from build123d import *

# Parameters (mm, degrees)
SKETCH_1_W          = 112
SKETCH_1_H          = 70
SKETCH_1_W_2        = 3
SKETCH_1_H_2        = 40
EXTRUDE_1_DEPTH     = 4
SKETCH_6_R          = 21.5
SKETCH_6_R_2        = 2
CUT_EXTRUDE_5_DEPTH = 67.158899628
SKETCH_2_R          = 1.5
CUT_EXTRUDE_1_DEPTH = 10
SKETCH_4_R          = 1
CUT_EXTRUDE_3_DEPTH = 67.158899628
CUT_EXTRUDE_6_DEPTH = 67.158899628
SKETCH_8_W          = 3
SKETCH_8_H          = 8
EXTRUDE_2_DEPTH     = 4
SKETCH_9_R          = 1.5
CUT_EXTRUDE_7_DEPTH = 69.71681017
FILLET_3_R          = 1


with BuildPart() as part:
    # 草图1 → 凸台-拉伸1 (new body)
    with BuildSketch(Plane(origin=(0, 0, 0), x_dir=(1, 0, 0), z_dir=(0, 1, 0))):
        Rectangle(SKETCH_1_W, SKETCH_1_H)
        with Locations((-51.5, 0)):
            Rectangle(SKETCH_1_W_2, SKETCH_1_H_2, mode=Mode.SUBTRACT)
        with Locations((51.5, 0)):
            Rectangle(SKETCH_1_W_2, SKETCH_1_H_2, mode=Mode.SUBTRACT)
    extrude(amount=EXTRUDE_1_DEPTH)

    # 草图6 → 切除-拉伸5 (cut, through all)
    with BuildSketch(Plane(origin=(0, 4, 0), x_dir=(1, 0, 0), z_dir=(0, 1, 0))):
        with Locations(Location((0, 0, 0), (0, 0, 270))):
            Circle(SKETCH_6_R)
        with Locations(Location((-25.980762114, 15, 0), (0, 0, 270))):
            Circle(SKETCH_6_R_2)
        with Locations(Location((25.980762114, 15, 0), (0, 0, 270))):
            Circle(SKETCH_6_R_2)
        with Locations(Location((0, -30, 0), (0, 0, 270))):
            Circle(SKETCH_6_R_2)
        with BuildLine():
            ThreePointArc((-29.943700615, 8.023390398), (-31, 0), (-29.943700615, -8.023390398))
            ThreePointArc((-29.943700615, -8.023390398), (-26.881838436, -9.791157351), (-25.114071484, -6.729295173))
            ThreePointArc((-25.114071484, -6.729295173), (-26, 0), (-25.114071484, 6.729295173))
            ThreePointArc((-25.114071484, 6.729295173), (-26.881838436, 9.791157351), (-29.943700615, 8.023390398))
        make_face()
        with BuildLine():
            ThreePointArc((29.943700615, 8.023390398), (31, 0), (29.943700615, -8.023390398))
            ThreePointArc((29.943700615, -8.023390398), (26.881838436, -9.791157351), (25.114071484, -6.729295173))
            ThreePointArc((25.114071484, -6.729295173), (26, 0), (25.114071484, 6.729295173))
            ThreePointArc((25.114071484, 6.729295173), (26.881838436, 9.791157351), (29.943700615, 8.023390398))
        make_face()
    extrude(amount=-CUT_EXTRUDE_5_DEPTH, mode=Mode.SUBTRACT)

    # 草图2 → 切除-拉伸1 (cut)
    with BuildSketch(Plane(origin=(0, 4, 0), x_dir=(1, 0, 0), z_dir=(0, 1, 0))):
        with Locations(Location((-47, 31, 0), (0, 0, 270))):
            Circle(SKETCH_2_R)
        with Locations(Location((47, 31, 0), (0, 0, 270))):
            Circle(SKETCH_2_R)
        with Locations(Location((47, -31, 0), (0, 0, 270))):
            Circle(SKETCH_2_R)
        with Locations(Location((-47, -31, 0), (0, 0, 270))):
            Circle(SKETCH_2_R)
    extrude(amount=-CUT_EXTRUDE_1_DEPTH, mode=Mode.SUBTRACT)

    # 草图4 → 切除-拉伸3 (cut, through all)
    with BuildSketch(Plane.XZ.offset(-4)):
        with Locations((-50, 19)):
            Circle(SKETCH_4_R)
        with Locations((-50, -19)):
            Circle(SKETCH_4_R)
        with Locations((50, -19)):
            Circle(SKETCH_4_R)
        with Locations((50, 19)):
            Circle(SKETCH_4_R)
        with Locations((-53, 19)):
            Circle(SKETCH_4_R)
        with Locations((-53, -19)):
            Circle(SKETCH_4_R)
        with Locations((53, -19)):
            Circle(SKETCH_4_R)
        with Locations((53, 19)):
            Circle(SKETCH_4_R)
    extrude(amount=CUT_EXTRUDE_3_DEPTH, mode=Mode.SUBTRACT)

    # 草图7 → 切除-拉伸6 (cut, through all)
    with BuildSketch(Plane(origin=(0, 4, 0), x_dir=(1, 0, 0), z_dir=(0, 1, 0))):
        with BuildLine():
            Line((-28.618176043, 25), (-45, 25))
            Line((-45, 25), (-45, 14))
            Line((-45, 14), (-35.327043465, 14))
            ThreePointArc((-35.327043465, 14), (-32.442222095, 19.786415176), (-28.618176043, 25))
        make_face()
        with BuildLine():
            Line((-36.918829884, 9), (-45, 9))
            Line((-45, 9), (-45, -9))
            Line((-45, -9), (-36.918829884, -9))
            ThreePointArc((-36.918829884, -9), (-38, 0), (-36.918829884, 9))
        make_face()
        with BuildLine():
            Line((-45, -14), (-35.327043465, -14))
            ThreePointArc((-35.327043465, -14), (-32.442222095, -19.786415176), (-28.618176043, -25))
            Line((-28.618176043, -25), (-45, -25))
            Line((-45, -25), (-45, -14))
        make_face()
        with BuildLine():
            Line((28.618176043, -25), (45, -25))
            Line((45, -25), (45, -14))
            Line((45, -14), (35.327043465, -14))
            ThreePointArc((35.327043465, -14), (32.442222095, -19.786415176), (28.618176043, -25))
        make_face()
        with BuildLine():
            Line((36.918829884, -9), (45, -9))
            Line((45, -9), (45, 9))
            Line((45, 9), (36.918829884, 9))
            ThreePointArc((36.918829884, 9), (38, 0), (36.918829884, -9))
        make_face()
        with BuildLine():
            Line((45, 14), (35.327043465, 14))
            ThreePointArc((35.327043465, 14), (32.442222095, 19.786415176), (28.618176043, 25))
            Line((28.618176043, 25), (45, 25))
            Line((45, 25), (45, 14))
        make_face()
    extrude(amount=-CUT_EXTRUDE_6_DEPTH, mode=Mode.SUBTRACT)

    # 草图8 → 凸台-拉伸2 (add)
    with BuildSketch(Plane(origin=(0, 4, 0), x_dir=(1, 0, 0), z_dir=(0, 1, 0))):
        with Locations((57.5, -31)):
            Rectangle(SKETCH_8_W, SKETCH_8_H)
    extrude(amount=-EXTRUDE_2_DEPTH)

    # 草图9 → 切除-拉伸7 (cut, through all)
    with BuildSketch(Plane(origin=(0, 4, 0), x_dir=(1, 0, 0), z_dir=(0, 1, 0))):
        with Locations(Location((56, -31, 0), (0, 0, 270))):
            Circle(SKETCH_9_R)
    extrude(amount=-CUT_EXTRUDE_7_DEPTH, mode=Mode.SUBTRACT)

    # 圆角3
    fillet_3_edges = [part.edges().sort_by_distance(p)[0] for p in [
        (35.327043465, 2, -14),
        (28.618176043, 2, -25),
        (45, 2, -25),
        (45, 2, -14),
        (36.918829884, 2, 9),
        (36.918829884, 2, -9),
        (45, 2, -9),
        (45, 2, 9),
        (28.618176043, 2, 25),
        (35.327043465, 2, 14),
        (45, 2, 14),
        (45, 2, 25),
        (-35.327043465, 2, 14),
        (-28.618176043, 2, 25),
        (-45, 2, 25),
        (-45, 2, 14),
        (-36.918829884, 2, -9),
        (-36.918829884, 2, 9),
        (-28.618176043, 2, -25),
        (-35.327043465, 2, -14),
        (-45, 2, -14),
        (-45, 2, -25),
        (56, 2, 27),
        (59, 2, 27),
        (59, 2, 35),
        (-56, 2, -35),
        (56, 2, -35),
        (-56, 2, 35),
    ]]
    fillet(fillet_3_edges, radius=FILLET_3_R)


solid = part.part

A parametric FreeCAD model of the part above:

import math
import FreeCAD as App
import Part
import Sketcher

V = App.Vector
Q = App.Units.Quantity


def edges_at(feature, points):
    """Names of the edges that pass closest to the given points."""
    edges = feature.Shape.Edges
    near = lambda p: min(range(len(edges)), key=lambda i: edges[i].distToShape(Part.Vertex(*p))[0])
    return sorted({f"Edge{near(p) + 1}" for p in points})


def add_polygon(sketch, points):
    """Adds a closed chain of lines whose ends are joined by coincident constraints."""
    first, n = sketch.GeometryCount, len(points)
    for a, b in zip(points, points[1:] + points[:1]):
        sketch.addGeometry(Part.LineSegment(App.Vector(*a, 0), App.Vector(*b, 0)), False)
    for i in range(n):
        sketch.addConstraint(Sketcher.Constraint("Coincident", first + i, 2, first + (i + 1) % n, 1))

doc = App.newDocument("Part")
body = doc.addObject("PartDesign::Body", "Body")

# Sketch on XZ plane
sketch1 = body.newObject("Sketcher::SketchObject", "Sketch")
sketch1.AttachmentSupport = (doc.getObject("XZ_Plane"), [""])
sketch1.MapMode = "FlatFace"
add_polygon(sketch1, [(-56, -35), (-56, 35), (56, 35), (56, -35)])  # lines 0-3
add_polygon(sketch1, [(-50, 20), (-53, 20), (-53, -20), (-50, -20)])  # lines 4-7
add_polygon(sketch1, [(53, 20), (50, 20), (50, -20), (53, -20)])  # lines 8-11
sketch1.addConstraint(Sketcher.Constraint("Vertical", 0))
sketch1.addConstraint(Sketcher.Constraint("Horizontal", 1))
sketch1.addConstraint(Sketcher.Constraint("Vertical", 2))
sketch1.addConstraint(Sketcher.Constraint("Horizontal", 3))
sketch1.addConstraint(Sketcher.Constraint("Horizontal", 4))
sketch1.addConstraint(Sketcher.Constraint("Vertical", 5))
sketch1.addConstraint(Sketcher.Constraint("Horizontal", 6))
sketch1.addConstraint(Sketcher.Constraint("Vertical", 7))
sketch1.addConstraint(Sketcher.Constraint("Horizontal", 8))
sketch1.addConstraint(Sketcher.Constraint("Vertical", 9))
sketch1.addConstraint(Sketcher.Constraint("Horizontal", 10))
sketch1.addConstraint(Sketcher.Constraint("Vertical", 11))
sketch1.addConstraint(Sketcher.Constraint("Symmetric", 0, 2, 2, 2, -1, 1))
sketch1.addConstraint(Sketcher.Constraint("Symmetric", 6, 2, 8, 2, -1, 1))
sketch1.addConstraint(Sketcher.Constraint("Symmetric", 4, 2, 10, 2, -1, 1))
sketch1.addConstraint(Sketcher.Constraint("Horizontal", 7, 2, 8, 2))
sketch1.addConstraint(Sketcher.Constraint("DistanceX", 1, 1, 1, 2, Q("112 mm")))
sketch1.addConstraint(Sketcher.Constraint("DistanceX", 4, 2, 4, 1, Q("3 mm")))
sketch1.addConstraint(Sketcher.Constraint("DistanceY", 0, 1, 0, 2, Q("70 mm")))
sketch1.addConstraint(Sketcher.Constraint("DistanceY", 5, 2, 5, 1, Q("40 mm")))
sketch1.addConstraint(Sketcher.Constraint("DistanceX", 4, 2, -1, 1, Q("53 mm")))
pad1 = body.newObject("PartDesign::Pad", "Pad")
pad1.Profile = sketch1
pad1.Length = 4
pad1.Reversed = True

# Sketch on XZ plane
sketch2 = body.newObject("Sketcher::SketchObject", "Sketch001")
sketch2.AttachmentSupport = (doc.getObject("XZ_Plane"), [""])
sketch2.MapMode = "FlatFace"
sketch2.AttachmentOffset = App.Placement(V(0, 0, -4), App.Rotation())
sketch2.addGeometry(Part.Circle(V(0, 0, 0), V(0, 0, 1), 21.5), False)
sketch2.addGeometry(Part.Circle(V(-26, -15, 0), V(0, 0, 1), 2), False)
sketch2.addGeometry(Part.Circle(V(26, -15, 0), V(0, 0, 1), 2), False)
sketch2.addGeometry(Part.Circle(V(0, 30, 0), V(0, 0, 1), 2), False)
sketch2.addGeometry(Part.ArcOfCircle(Part.Circle(V(0, 0, 0), V(0, 0, 1), 31), math.radians(165), math.radians(195)), False)
sketch2.addGeometry(Part.ArcOfCircle(Part.Circle(V(-27.5, 7.4, 0), V(0, 0, 1), 2.5), math.radians(-15), math.radians(165)), False)
sketch2.addGeometry(Part.ArcOfCircle(Part.Circle(V(0, 0, 0), V(0, 0, 1), 26), math.radians(165), math.radians(195)), False)
sketch2.addGeometry(Part.ArcOfCircle(Part.Circle(V(-27.5, -7.4, 0), V(0, 0, 1), 2.5), math.radians(-165), math.radians(15)), False)
sketch2.addGeometry(Part.ArcOfCircle(Part.Circle(V(0, 0, 0), V(0, 0, 1), 31), math.radians(-15), math.radians(15)), False)
sketch2.addGeometry(Part.ArcOfCircle(Part.Circle(V(27.5, -7.4, 0), V(0, 0, 1), 2.5), math.radians(165), math.radians(345)), False)
sketch2.addGeometry(Part.ArcOfCircle(Part.Circle(V(0, 0, 0), V(0, 0, 1), 26), math.radians(-15), math.radians(15)), False)
sketch2.addGeometry(Part.ArcOfCircle(Part.Circle(V(27.5, 7.4, 0), V(0, 0, 1), 2.5), math.radians(15), math.radians(195)), False)
sketch2.addConstraint(Sketcher.Constraint("Tangent", 4, 1, 5, 2))
sketch2.addConstraint(Sketcher.Constraint("Tangent", 5, 1, 6, 1))
sketch2.addConstraint(Sketcher.Constraint("Tangent", 6, 2, 7, 2))
sketch2.addConstraint(Sketcher.Constraint("Tangent", 7, 1, 4, 2))
sketch2.addConstraint(Sketcher.Constraint("Tangent", 8, 1, 9, 2))
sketch2.addConstraint(Sketcher.Constraint("Tangent", 9, 1, 10, 1))
sketch2.addConstraint(Sketcher.Constraint("Tangent", 10, 2, 11, 2))
sketch2.addConstraint(Sketcher.Constraint("Tangent", 11, 1, 8, 2))
sketch2.addConstraint(Sketcher.Constraint("Coincident", 0, 3, -1, 1))
sketch2.addConstraint(Sketcher.Constraint("Coincident", 4, 3, -1, 1))
sketch2.addConstraint(Sketcher.Constraint("Coincident", 6, 3, -1, 1))
sketch2.addConstraint(Sketcher.Constraint("Coincident", 8, 3, -1, 1))
sketch2.addConstraint(Sketcher.Constraint("Coincident", 10, 3, -1, 1))
sketch2.addConstraint(Sketcher.Constraint("Equal", 1, 2))
sketch2.addConstraint(Sketcher.Constraint("Equal", 2, 3))
sketch2.addConstraint(Sketcher.Constraint("Equal", 4, 8))
sketch2.addConstraint(Sketcher.Constraint("Equal", 7, 9))
sketch2.addConstraint(Sketcher.Constraint("Symmetric", 1, 3, 2, 3, -2))
sketch2.addConstraint(Sketcher.Constraint("PointOnObject", 3, 3, -2))
sketch2.addConstraint(Sketcher.Constraint("Horizontal", 7, 3, 9, 3))
sketch2.addConstraint(Sketcher.Constraint("Horizontal", 5, 3, 11, 3))
sketch2.addConstraint(Sketcher.Constraint("Vertical", 5, 3, 7, 3))
sketch2.addConstraint(Sketcher.Constraint("Diameter", 0, Q("43 mm")))
sketch2.addConstraint(Sketcher.Constraint("Diameter", 1, Q("4 mm")))
sketch2.addConstraint(Sketcher.Constraint("Radius", 4, Q("31 mm")))
sketch2.addConstraint(Sketcher.Constraint("Radius", 6, Q("26 mm")))
sketch2.addConstraint(Sketcher.Constraint("DistanceY", 1, 3, -1, 1, Q("15 mm")))
sketch2.addConstraint(Sketcher.Constraint("DistanceY", -1, 1, 3, 3, Q("30 mm")))
sketch2.addConstraint(Sketcher.Constraint("DistanceX", 4, 1, -1, 1, Q("29.943701 mm")))
sketch2.addConstraint(Sketcher.Constraint("DistanceX", 5, 3, 2, 3, Q("53.509648 mm")))
pocket1 = body.newObject("PartDesign::Pocket", "Pocket")
pocket1.Profile = sketch2
pocket1.Type = "ThroughAll"
pocket1.Reversed = True

# Sketch on XZ plane
sketch3 = body.newObject("Sketcher::SketchObject", "Sketch002")
sketch3.AttachmentSupport = (doc.getObject("XZ_Plane"), [""])
sketch3.MapMode = "FlatFace"
sketch3.AttachmentOffset = App.Placement(V(0, 0, -4), App.Rotation())
sketch3.addGeometry(Part.Circle(V(-47, -31, 0), V(0, 0, 1), 1.5), False)
sketch3.addGeometry(Part.Circle(V(47, -31, 0), V(0, 0, 1), 1.5), False)
sketch3.addGeometry(Part.Circle(V(47, 31, 0), V(0, 0, 1), 1.5), False)
sketch3.addGeometry(Part.Circle(V(-47, 31, 0), V(0, 0, 1), 1.5), False)
sketch3.addConstraint(Sketcher.Constraint("Equal", 0, 1))
sketch3.addConstraint(Sketcher.Constraint("Equal", 1, 2))
sketch3.addConstraint(Sketcher.Constraint("Equal", 2, 3))
sketch3.addConstraint(Sketcher.Constraint("Symmetric", 0, 3, 2, 3, -1, 1))
sketch3.addConstraint(Sketcher.Constraint("Symmetric", 1, 3, 3, 3, -1, 1))
sketch3.addConstraint(Sketcher.Constraint("Symmetric", 0, 3, 1, 3, -2))
sketch3.addConstraint(Sketcher.Constraint("Diameter", 0, Q("3 mm")))
sketch3.addConstraint(Sketcher.Constraint("DistanceX", 0, 3, -1, 1, Q("47 mm")))
sketch3.addConstraint(Sketcher.Constraint("DistanceY", 0, 3, -1, 1, Q("31 mm")))
pocket2 = body.newObject("PartDesign::Pocket", "Pocket001")
pocket2.Profile = sketch3
pocket2.Length = 10
pocket2.Reversed = True

# Sketch on XZ plane
sketch4 = body.newObject("Sketcher::SketchObject", "Sketch003")
sketch4.AttachmentSupport = (doc.getObject("XZ_Plane"), [""])
sketch4.MapMode = "FlatFace"
sketch4.AttachmentOffset = App.Placement(V(0, 0, -4), App.Rotation())
sketch4.addGeometry(Part.Circle(V(-50, 19, 0), V(0, 0, 1), 1), False)
sketch4.addGeometry(Part.Circle(V(-50, -19, 0), V(0, 0, 1), 1), False)
sketch4.addGeometry(Part.Circle(V(50, -19, 0), V(0, 0, 1), 1), False)
sketch4.addGeometry(Part.Circle(V(50, 19, 0), V(0, 0, 1), 1), False)
sketch4.addGeometry(Part.Circle(V(-53, 19, 0), V(0, 0, 1), 1), False)
sketch4.addGeometry(Part.Circle(V(-53, -19, 0), V(0, 0, 1), 1), False)
sketch4.addGeometry(Part.Circle(V(53, -19, 0), V(0, 0, 1), 1), False)
sketch4.addGeometry(Part.Circle(V(53, 19, 0), V(0, 0, 1), 1), False)
sketch4.addConstraint(Sketcher.Constraint("Equal", 0, 1))
sketch4.addConstraint(Sketcher.Constraint("Equal", 1, 2))
sketch4.addConstraint(Sketcher.Constraint("Equal", 2, 3))
sketch4.addConstraint(Sketcher.Constraint("Equal", 3, 4))
sketch4.addConstraint(Sketcher.Constraint("Equal", 4, 5))
sketch4.addConstraint(Sketcher.Constraint("Equal", 5, 6))
sketch4.addConstraint(Sketcher.Constraint("Equal", 6, 7))
sketch4.addConstraint(Sketcher.Constraint("Symmetric", 0, 3, 2, 3, -1, 1))
sketch4.addConstraint(Sketcher.Constraint("Symmetric", 1, 3, 3, 3, -1, 1))
sketch4.addConstraint(Sketcher.Constraint("Symmetric", 4, 3, 6, 3, -1, 1))
sketch4.addConstraint(Sketcher.Constraint("Symmetric", 5, 3, 7, 3, -1, 1))
sketch4.addConstraint(Sketcher.Constraint("Symmetric", 1, 3, 2, 3, -2))
sketch4.addConstraint(Sketcher.Constraint("Symmetric", 5, 3, 6, 3, -2))
sketch4.addConstraint(Sketcher.Constraint("Horizontal", 3, 3, 4, 3))
sketch4.addConstraint(Sketcher.Constraint("Diameter", 0, Q("2 mm")))
sketch4.addConstraint(Sketcher.Constraint("DistanceX", 0, 3, -1, 1, Q("50 mm")))
sketch4.addConstraint(Sketcher.Constraint("DistanceY", -1, 1, 0, 3, Q("19 mm")))
sketch4.addConstraint(Sketcher.Constraint("DistanceX", 4, 3, -1, 1, Q("53 mm")))
pocket3 = body.newObject("PartDesign::Pocket", "Pocket002")
pocket3.Profile = sketch4
pocket3.Type = "ThroughAll"
pocket3.Reversed = True

# Sketch on XZ plane
sketch5 = body.newObject("Sketcher::SketchObject", "Sketch004")
sketch5.AttachmentSupport = (doc.getObject("XZ_Plane"), [""])
sketch5.MapMode = "FlatFace"
sketch5.AttachmentOffset = App.Placement(V(0, 0, -4), App.Rotation())
sketch5.addGeometry(Part.LineSegment(V(-29, -25, 0), V(-45, -25, 0)), False)
sketch5.addGeometry(Part.LineSegment(V(-45, -25, 0), V(-45, -14, 0)), False)
sketch5.addGeometry(Part.LineSegment(V(-45, -14, 0), V(-35, -14, 0)), False)
sketch5.addGeometry(Part.ArcOfCircle(Part.Circle(V(0, 0, 0), V(0, 0, 1), 38), math.radians(-158.38), math.radians(-138.86)), False)
sketch5.addGeometry(Part.LineSegment(V(-37, -9, 0), V(-45, -9, 0)), False)
sketch5.addGeometry(Part.LineSegment(V(-45, -9, 0), V(-45, 9, 0)), False)
sketch5.addGeometry(Part.LineSegment(V(-45, 9, 0), V(-37, 9, 0)), False)
sketch5.addGeometry(Part.ArcOfCircle(Part.Circle(V(0, 0, 0), V(0, 0, 1), 38), math.radians(166), math.radians(194)), False)
sketch5.addGeometry(Part.LineSegment(V(-35, 14, 0), V(-45, 14, 0)), False)
sketch5.addGeometry(Part.LineSegment(V(-45, 14, 0), V(-45, 25, 0)), False)
sketch5.addGeometry(Part.LineSegment(V(-45, 25, 0), V(-29, 25, 0)), False)
sketch5.addGeometry(Part.ArcOfCircle(Part.Circle(V(0, 0, 0), V(0, 0, 1), 38), math.radians(138.86), math.radians(158.38)), False)
sketch5.addGeometry(Part.LineSegment(V(29, 25, 0), V(45, 25, 0)), False)
sketch5.addGeometry(Part.LineSegment(V(45, 25, 0), V(45, 14, 0)), False)
sketch5.addGeometry(Part.LineSegment(V(45, 14, 0), V(35, 14, 0)), False)
sketch5.addGeometry(Part.ArcOfCircle(Part.Circle(V(0, 0, 0), V(0, 0, 1), 38), math.radians(21.62), math.radians(41.14)), False)
sketch5.addGeometry(Part.LineSegment(V(37, 9, 0), V(45, 9, 0)), False)
sketch5.addGeometry(Part.LineSegment(V(45, 9, 0), V(45, -9, 0)), False)
sketch5.addGeometry(Part.LineSegment(V(45, -9, 0), V(37, -9, 0)), False)
sketch5.addGeometry(Part.ArcOfCircle(Part.Circle(V(0, 0, 0), V(0, 0, 1), 38), math.radians(-14), math.radians(14)), False)
sketch5.addGeometry(Part.LineSegment(V(35, -14, 0), V(45, -14, 0)), False)
sketch5.addGeometry(Part.LineSegment(V(45, -14, 0), V(45, -25, 0)), False)
sketch5.addGeometry(Part.LineSegment(V(45, -25, 0), V(29, -25, 0)), False)
sketch5.addGeometry(Part.ArcOfCircle(Part.Circle(V(0, 0, 0), V(0, 0, 1), 38), math.radians(-41.14), math.radians(-21.62)), False)
sketch5.addConstraint(Sketcher.Constraint("Coincident", 0, 2, 1, 1))
sketch5.addConstraint(Sketcher.Constraint("Coincident", 1, 2, 2, 1))
sketch5.addConstraint(Sketcher.Constraint("Coincident", 2, 2, 3, 1))
sketch5.addConstraint(Sketcher.Constraint("Coincident", 3, 2, 0, 1))
sketch5.addConstraint(Sketcher.Constraint("Coincident", 4, 2, 5, 1))
sketch5.addConstraint(Sketcher.Constraint("Coincident", 5, 2, 6, 1))
sketch5.addConstraint(Sketcher.Constraint("Coincident", 6, 2, 7, 1))
sketch5.addConstraint(Sketcher.Constraint("Coincident", 7, 2, 4, 1))
sketch5.addConstraint(Sketcher.Constraint("Coincident", 8, 2, 9, 1))
sketch5.addConstraint(Sketcher.Constraint("Coincident", 9, 2, 10, 1))
sketch5.addConstraint(Sketcher.Constraint("Coincident", 10, 2, 11, 1))
sketch5.addConstraint(Sketcher.Constraint("Coincident", 11, 2, 8, 1))
sketch5.addConstraint(Sketcher.Constraint("Coincident", 12, 2, 13, 1))
sketch5.addConstraint(Sketcher.Constraint("Coincident", 13, 2, 14, 1))
sketch5.addConstraint(Sketcher.Constraint("Coincident", 14, 2, 15, 1))
sketch5.addConstraint(Sketcher.Constraint("Coincident", 15, 2, 12, 1))
sketch5.addConstraint(Sketcher.Constraint("Coincident", 16, 2, 17, 1))
sketch5.addConstraint(Sketcher.Constraint("Coincident", 17, 2, 18, 1))
sketch5.addConstraint(Sketcher.Constraint("Coincident", 18, 2, 19, 1))
sketch5.addConstraint(Sketcher.Constraint("Coincident", 19, 2, 16, 1))
sketch5.addConstraint(Sketcher.Constraint("Coincident", 20, 2, 21, 1))
sketch5.addConstraint(Sketcher.Constraint("Coincident", 21, 2, 22, 1))
sketch5.addConstraint(Sketcher.Constraint("Coincident", 22, 2, 23, 1))
sketch5.addConstraint(Sketcher.Constraint("Coincident", 23, 2, 20, 1))
sketch5.addConstraint(Sketcher.Constraint("Horizontal", 0))
sketch5.addConstraint(Sketcher.Constraint("Vertical", 1))
sketch5.addConstraint(Sketcher.Constraint("Horizontal", 2))
sketch5.addConstraint(Sketcher.Constraint("Horizontal", 4))
sketch5.addConstraint(Sketcher.Constraint("Vertical", 5))
sketch5.addConstraint(Sketcher.Constraint("Horizontal", 6))
sketch5.addConstraint(Sketcher.Constraint("Horizontal", 8))
sketch5.addConstraint(Sketcher.Constraint("Vertical", 9))
sketch5.addConstraint(Sketcher.Constraint("Horizontal", 10))
sketch5.addConstraint(Sketcher.Constraint("Horizontal", 12))
sketch5.addConstraint(Sketcher.Constraint("Vertical", 13))
sketch5.addConstraint(Sketcher.Constraint("Horizontal", 14))
sketch5.addConstraint(Sketcher.Constraint("Horizontal", 16))
sketch5.addConstraint(Sketcher.Constraint("Vertical", 17))
sketch5.addConstraint(Sketcher.Constraint("Horizontal", 18))
sketch5.addConstraint(Sketcher.Constraint("Horizontal", 20))
sketch5.addConstraint(Sketcher.Constraint("Vertical", 21))
sketch5.addConstraint(Sketcher.Constraint("Horizontal", 22))
sketch5.addConstraint(Sketcher.Constraint("Coincident", 3, 3, -1, 1))
sketch5.addConstraint(Sketcher.Constraint("Coincident", 7, 3, -1, 1))
sketch5.addConstraint(Sketcher.Constraint("Coincident", 11, 3, -1, 1))
sketch5.addConstraint(Sketcher.Constraint("Coincident", 15, 3, -1, 1))
sketch5.addConstraint(Sketcher.Constraint("Coincident", 19, 3, -1, 1))
sketch5.addConstraint(Sketcher.Constraint("Coincident", 23, 3, -1, 1))
sketch5.addConstraint(Sketcher.Constraint("Equal", 3, 7))
sketch5.addConstraint(Sketcher.Constraint("Equal", 7, 11))
sketch5.addConstraint(Sketcher.Constraint("Equal", 11, 15))
sketch5.addConstraint(Sketcher.Constraint("Equal", 15, 19))
sketch5.addConstraint(Sketcher.Constraint("Equal", 19, 23))
sketch5.addConstraint(Sketcher.Constraint("Symmetric", 0, 2, 12, 2, -1, 1))
sketch5.addConstraint(Sketcher.Constraint("Symmetric", 4, 2, 16, 2, -1, 1))
sketch5.addConstraint(Sketcher.Constraint("Symmetric", 8, 2, 20, 2, -1, 1))
sketch5.addConstraint(Sketcher.Constraint("Symmetric", 9, 2, 12, 2, -2))
sketch5.addConstraint(Sketcher.Constraint("Horizontal", 11, 2, 13, 2))
sketch5.addConstraint(Sketcher.Constraint("Horizontal", 6, 2, 16, 2))
sketch5.addConstraint(Sketcher.Constraint("Horizontal", 7, 2, 17, 2))
sketch5.addConstraint(Sketcher.Constraint("Horizontal", 2, 2, 20, 2))
sketch5.addConstraint(Sketcher.Constraint("Horizontal", 3, 2, 21, 2))
sketch5.addConstraint(Sketcher.Constraint("Vertical", 1, 2, 4, 2))
sketch5.addConstraint(Sketcher.Constraint("Radius", 3, Q("38 mm")))
sketch5.addConstraint(Sketcher.Constraint("DistanceY", 1, 1, 1, 2, Q("11 mm")))
sketch5.addConstraint(Sketcher.Constraint("DistanceY", 5, 1, 5, 2, Q("18 mm")))
sketch5.addConstraint(Sketcher.Constraint("DistanceX", 0, 2, -1, 1, Q("45 mm")))
sketch5.addConstraint(Sketcher.Constraint("DistanceY", 0, 2, -1, 1, Q("25 mm")))
pocket4 = body.newObject("PartDesign::Pocket", "Pocket003")
pocket4.Profile = sketch5
pocket4.Type = "ThroughAll"
pocket4.Reversed = True

# Sketch on XZ plane
sketch6 = body.newObject("Sketcher::SketchObject", "Sketch005")
sketch6.AttachmentSupport = (doc.getObject("XZ_Plane"), [""])
sketch6.MapMode = "FlatFace"
sketch6.AttachmentOffset = App.Placement(V(0, 0, -4), App.Rotation())
add_polygon(sketch6, [(56, 27), (56, 35), (59, 35), (59, 27)])  # lines 0-3
sketch6.addConstraint(Sketcher.Constraint("Vertical", 0))
sketch6.addConstraint(Sketcher.Constraint("Horizontal", 1))
sketch6.addConstraint(Sketcher.Constraint("Vertical", 2))
sketch6.addConstraint(Sketcher.Constraint("Horizontal", 3))
sketch6.addConstraint(Sketcher.Constraint("DistanceX", 1, 1, 1, 2, Q("3 mm")))
sketch6.addConstraint(Sketcher.Constraint("DistanceY", 0, 1, 0, 2, Q("8 mm")))
sketch6.addConstraint(Sketcher.Constraint("DistanceX", -1, 1, 0, 2, Q("56 mm")))
sketch6.addConstraint(Sketcher.Constraint("DistanceY", -1, 1, 0, 2, Q("35 mm")))
pad2 = body.newObject("PartDesign::Pad", "Pad001")
pad2.Profile = sketch6
pad2.Length = 4

# Sketch on XZ plane
sketch7 = body.newObject("Sketcher::SketchObject", "Sketch006")
sketch7.AttachmentSupport = (doc.getObject("XZ_Plane"), [""])
sketch7.MapMode = "FlatFace"
sketch7.AttachmentOffset = App.Placement(V(0, 0, -4), App.Rotation())
sketch7.addGeometry(Part.Circle(V(56, 31, 0), V(0, 0, 1), 1.5), False)
sketch7.addConstraint(Sketcher.Constraint("Diameter", 0, Q("3 mm")))
sketch7.addConstraint(Sketcher.Constraint("DistanceX", -1, 1, 0, 3, Q("56 mm")))
sketch7.addConstraint(Sketcher.Constraint("DistanceY", -1, 1, 0, 3, Q("31 mm")))
pocket5 = body.newObject("PartDesign::Pocket", "Pocket004")
pocket5.Profile = sketch7
pocket5.Type = "ThroughAll"
pocket5.Reversed = True
doc.recompute()

fillet = body.newObject("PartDesign::Fillet", "Fillet")
fillet.Base = (pocket5, edges_at(pocket5, [
    (35.327, 2, -14),
    (28.618, 2, -25),
    (45, 2, -25),
    (45, 2, -14),
    (36.919, 2, 9),
    (36.919, 2, -9),
    (45, 2, -9),
    (45, 2, 9),
    (28.618, 2, 25),
    (35.327, 2, 14),
    (45, 2, 14),
    (45, 2, 25),
    (-35.327, 2, 14),
    (-28.618, 2, 25),
    (-45, 2, 25),
    (-45, 2, 14),
    (-36.919, 2, -9),
    (-36.919, 2, 9),
    (-28.618, 2, -25),
    (-35.327, 2, -14),
    (-45, 2, -14),
    (-45, 2, -25),
    (56, 2, 27),
    (59, 2, 27),
    (59, 2, 35),
    (-56, 2, -35),
    (56, 2, -35),
    (-56, 2, 35),
]))
fillet.Radius = 1

doc.recompute()
